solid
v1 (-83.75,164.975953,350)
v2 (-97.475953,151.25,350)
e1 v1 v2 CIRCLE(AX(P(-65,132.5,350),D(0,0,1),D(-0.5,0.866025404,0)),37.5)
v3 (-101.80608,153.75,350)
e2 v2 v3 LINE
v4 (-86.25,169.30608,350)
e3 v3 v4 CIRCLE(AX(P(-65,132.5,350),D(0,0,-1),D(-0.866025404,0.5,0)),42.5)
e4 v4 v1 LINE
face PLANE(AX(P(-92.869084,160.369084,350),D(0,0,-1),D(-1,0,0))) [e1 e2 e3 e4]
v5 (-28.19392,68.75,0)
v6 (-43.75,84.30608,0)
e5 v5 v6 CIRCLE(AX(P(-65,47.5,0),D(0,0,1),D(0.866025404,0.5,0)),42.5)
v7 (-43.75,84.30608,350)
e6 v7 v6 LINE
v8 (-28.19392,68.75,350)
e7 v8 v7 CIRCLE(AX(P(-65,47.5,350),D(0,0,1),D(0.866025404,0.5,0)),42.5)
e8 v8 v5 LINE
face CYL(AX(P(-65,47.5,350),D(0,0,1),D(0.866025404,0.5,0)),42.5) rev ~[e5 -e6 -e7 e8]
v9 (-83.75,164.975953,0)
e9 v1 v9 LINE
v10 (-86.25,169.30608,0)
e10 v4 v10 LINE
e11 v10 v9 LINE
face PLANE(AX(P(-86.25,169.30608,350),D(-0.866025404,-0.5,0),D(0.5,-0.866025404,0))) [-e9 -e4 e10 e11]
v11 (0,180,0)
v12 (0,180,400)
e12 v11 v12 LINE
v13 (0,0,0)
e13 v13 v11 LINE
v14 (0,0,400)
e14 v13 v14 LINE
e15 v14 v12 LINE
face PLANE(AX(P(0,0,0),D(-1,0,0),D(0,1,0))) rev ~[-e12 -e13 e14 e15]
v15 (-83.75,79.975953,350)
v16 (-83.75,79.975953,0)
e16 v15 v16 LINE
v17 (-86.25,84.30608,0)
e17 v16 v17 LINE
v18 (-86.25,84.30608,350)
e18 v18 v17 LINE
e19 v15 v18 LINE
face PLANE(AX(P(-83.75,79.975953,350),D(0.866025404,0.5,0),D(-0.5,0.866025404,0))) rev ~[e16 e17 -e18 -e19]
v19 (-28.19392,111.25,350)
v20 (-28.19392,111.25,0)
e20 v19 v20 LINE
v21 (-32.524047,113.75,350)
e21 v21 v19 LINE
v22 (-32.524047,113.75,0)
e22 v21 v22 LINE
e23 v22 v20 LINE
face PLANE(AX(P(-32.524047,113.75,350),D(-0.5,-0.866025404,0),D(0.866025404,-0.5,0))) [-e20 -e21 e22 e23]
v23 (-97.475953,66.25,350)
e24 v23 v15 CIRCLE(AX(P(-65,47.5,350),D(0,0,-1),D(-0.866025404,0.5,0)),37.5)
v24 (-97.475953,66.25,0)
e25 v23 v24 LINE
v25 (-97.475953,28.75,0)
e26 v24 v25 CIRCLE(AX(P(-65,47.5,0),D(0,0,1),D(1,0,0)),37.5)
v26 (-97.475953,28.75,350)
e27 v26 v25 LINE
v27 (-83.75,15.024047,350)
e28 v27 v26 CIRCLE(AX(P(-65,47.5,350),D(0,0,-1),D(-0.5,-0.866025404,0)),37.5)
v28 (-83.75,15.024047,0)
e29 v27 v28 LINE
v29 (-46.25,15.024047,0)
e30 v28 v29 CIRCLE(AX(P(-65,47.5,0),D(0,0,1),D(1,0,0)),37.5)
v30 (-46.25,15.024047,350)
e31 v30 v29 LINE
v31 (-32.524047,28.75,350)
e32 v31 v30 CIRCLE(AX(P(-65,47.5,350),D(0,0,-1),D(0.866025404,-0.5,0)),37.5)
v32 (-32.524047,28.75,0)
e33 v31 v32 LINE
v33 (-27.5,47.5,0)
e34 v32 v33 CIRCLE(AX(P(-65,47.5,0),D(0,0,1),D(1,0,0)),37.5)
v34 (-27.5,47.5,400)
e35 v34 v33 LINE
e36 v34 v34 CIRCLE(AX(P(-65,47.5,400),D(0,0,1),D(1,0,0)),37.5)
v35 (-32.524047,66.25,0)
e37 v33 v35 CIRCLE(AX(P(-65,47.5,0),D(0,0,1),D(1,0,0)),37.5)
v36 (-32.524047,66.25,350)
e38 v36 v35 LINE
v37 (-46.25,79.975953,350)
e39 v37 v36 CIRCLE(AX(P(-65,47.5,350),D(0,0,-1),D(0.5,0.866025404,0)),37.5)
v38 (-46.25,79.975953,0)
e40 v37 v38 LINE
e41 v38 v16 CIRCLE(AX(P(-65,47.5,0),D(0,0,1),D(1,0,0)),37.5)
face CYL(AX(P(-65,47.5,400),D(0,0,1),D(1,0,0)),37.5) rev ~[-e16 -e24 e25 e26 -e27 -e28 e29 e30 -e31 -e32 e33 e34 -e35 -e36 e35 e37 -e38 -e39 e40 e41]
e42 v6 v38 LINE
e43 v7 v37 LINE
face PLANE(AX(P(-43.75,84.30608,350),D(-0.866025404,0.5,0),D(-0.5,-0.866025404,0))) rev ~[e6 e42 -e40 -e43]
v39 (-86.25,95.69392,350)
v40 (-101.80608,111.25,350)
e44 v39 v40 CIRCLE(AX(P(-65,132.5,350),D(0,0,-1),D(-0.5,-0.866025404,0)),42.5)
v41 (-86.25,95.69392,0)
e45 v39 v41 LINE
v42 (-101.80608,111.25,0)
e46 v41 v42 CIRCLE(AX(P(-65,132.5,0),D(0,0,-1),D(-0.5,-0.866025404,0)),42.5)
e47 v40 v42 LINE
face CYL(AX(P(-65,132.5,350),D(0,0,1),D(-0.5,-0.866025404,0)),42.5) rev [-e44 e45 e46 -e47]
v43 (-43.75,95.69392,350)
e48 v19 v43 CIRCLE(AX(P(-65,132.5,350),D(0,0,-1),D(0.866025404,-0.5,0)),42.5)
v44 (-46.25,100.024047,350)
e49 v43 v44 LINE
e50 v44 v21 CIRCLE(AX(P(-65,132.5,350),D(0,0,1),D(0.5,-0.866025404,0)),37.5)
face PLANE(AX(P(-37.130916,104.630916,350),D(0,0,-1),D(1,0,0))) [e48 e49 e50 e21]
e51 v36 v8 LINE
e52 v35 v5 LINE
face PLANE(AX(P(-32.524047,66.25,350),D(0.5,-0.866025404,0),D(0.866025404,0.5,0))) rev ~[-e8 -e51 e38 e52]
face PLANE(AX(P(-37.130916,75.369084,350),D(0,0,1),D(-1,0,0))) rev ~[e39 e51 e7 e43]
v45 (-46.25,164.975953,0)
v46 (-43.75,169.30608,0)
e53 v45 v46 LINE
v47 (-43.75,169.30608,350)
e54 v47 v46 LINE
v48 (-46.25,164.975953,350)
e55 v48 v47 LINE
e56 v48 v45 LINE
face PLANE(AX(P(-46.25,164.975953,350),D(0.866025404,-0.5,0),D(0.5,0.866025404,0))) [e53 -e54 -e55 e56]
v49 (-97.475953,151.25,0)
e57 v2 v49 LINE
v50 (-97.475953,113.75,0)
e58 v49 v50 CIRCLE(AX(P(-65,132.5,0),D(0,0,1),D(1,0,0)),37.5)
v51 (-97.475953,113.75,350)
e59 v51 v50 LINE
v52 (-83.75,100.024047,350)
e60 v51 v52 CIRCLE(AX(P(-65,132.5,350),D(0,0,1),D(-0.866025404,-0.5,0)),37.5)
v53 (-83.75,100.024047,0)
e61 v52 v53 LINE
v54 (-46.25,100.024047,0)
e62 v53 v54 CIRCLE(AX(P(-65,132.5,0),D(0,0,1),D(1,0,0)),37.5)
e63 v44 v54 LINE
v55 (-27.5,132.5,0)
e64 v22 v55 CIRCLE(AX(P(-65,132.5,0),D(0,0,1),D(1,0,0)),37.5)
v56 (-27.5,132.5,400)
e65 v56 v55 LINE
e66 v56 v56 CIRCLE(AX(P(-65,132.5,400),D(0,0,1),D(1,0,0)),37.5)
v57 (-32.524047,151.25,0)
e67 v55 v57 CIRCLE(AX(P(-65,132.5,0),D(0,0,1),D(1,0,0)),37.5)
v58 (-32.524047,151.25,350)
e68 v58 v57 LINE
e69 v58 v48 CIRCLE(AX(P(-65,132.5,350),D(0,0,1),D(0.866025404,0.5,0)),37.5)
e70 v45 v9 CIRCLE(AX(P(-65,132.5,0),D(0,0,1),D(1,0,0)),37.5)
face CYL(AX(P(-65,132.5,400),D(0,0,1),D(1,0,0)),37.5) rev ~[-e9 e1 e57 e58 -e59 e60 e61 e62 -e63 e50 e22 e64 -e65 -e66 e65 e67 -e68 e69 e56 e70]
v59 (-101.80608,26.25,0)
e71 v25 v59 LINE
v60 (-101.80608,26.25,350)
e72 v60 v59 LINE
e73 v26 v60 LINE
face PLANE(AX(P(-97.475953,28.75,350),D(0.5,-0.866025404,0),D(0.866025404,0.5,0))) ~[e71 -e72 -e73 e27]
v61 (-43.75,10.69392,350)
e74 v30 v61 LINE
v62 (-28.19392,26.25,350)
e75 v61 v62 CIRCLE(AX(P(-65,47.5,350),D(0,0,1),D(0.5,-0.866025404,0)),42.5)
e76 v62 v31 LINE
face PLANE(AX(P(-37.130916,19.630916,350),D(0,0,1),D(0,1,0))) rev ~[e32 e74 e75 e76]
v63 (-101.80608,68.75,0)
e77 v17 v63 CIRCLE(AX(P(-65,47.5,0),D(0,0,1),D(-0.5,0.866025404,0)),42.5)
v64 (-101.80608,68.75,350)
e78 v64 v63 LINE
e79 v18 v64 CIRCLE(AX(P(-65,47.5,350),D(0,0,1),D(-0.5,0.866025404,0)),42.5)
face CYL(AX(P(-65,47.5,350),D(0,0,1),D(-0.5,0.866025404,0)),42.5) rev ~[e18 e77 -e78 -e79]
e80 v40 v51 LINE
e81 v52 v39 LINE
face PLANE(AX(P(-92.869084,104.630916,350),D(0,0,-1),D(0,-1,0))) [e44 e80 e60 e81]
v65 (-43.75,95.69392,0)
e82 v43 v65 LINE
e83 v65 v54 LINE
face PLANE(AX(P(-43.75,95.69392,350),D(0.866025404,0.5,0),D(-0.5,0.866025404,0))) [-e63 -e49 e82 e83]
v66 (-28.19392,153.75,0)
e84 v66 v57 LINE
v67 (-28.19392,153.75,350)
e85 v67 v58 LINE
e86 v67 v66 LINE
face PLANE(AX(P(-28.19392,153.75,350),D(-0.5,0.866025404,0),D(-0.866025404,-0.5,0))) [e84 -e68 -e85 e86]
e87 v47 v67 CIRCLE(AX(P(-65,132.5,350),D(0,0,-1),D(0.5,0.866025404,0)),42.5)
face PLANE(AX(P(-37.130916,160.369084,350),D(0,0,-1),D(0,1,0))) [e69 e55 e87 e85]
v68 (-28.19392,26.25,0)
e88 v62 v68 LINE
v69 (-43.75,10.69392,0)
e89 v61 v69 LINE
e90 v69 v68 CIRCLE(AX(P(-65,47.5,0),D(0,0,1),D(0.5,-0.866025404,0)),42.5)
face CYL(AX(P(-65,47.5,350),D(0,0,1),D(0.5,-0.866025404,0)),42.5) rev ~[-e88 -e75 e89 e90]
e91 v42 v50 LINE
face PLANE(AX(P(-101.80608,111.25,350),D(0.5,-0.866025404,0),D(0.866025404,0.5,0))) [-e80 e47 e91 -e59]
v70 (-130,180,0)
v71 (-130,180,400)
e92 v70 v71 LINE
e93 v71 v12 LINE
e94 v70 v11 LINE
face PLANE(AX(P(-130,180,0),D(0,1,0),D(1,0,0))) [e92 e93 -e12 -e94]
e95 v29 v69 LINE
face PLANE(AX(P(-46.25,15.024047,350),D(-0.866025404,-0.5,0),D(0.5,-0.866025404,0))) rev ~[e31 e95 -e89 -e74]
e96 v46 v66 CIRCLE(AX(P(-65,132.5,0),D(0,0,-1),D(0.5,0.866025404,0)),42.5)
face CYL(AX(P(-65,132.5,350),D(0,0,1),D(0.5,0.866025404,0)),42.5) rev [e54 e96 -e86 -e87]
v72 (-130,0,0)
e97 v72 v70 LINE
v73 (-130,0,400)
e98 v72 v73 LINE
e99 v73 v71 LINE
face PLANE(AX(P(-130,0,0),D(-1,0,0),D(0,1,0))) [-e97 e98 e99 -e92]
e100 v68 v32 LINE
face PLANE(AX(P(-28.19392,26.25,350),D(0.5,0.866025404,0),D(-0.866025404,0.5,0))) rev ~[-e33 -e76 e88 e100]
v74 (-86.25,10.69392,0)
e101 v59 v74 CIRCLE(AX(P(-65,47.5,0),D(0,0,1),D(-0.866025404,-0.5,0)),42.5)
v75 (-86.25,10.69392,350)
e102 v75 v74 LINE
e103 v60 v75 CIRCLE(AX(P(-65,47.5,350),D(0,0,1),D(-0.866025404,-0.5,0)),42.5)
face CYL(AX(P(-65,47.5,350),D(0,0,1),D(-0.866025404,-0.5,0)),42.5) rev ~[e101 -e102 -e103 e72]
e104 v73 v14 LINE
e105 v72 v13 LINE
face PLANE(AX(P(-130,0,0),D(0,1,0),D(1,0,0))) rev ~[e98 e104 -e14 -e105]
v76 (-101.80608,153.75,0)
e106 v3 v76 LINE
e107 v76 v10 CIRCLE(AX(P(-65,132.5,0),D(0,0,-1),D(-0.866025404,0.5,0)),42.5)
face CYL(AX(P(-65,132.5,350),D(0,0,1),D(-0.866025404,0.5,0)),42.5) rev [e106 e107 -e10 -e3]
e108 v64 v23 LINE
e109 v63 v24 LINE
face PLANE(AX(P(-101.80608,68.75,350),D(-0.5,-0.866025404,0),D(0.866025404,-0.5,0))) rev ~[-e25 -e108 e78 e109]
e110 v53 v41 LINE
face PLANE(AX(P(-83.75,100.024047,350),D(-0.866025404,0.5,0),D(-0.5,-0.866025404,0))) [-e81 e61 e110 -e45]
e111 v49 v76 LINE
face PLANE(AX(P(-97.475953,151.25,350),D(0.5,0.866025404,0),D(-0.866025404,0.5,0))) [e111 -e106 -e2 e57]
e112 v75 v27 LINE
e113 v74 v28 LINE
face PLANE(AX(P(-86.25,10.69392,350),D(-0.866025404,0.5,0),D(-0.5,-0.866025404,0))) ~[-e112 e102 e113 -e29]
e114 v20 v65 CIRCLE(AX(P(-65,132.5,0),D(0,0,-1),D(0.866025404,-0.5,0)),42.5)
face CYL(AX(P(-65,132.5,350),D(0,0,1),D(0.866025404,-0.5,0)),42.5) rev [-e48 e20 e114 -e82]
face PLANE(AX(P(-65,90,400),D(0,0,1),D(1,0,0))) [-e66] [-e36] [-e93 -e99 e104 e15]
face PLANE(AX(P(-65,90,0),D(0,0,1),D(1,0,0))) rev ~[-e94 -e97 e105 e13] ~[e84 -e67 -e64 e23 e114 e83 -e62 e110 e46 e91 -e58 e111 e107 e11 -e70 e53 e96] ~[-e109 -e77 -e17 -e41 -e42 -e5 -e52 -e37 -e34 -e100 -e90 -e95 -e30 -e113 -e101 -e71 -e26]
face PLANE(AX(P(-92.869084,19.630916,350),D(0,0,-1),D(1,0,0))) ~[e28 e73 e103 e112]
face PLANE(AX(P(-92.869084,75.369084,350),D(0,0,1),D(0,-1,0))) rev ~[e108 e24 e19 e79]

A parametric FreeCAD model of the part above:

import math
import FreeCAD as App
import Part
import Sketcher
Q = App.Units.Quantity


def add_polygon(sketch, points):
    """Adds a closed chain of lines whose ends are joined by coincident constraints."""
    first, n = sketch.GeometryCount, len(points)
    for a, b in zip(points, points[1:] + points[:1]):
        sketch.addGeometry(Part.LineSegment(App.Vector(*a, 0), App.Vector(*b, 0)), False)
    for i in range(n):
        sketch.addConstraint(Sketcher.Constraint("Coincident", first + i, 2, first + (i + 1) % n, 1))

doc = App.newDocument("Part")
body = doc.addObject("PartDesign::Body", "Body")

sketch1 = doc.addObject("Sketcher::SketchObject", "Sketch")
body.addObject(sketch1)
sketch1.AttachmentSupport = (doc.XY_Plane, [""])
sketch1.MapMode = "FlatFace"
add_polygon(sketch1, [(-130, 180), (-130, 0), (0, 0), (0, 180)])
sketch1.addConstraint(Sketcher.Constraint("Vertical", 0))
sketch1.addConstraint(Sketcher.Constraint("Horizontal", 1))
sketch1.addConstraint(Sketcher.Constraint("Vertical", 2))
sketch1.addConstraint(Sketcher.Constraint("Horizontal", 3))
sketch1.addConstraint(Sketcher.Constraint("Coincident", 1, 2, -1, 1))
sketch1.addConstraint(Sketcher.Constraint("DistanceX", 1, 1, 1, 2, Q("130 mm")))
sketch1.addConstraint(Sketcher.Constraint("DistanceY", 0, 2, 0, 1, Q("180 mm")))
pad1 = doc.addObject("PartDesign::Pad", "Pad")
body.addObject(pad1)
pad1.Profile = sketch1
pad1.Length = 400

sketch2 = doc.addObject("Sketcher::SketchObject", "Sketch001")
body.addObject(sketch2)
sketch2.AttachmentSupport = (doc.XY_Plane, [""])
sketch2.MapMode = "FlatFace"
sketch2.AttachmentOffset = App.Placement(App.Vector(0, 0, 400), App.Rotation())
sketch2.addGeometry(Part.Circle(App.Vector(-65, 132.5, 0), App.Vector(0, 0, 1), 37.5), False)
sketch2.addGeometry(Part.Circle(App.Vector(-65, 47.5, 0), App.Vector(0, 0, 1), 37.5), False)
sketch2.addConstraint(Sketcher.Constraint("Equal", 0, 1))
sketch2.addConstraint(Sketcher.Constraint("Vertical", 0, 3, 1, 3))
sketch2.addConstraint(Sketcher.Constraint("Diameter", 0, Q("75 mm")))
sketch2.addConstraint(Sketcher.Constraint("DistanceX", 0, 3, -1, 1, Q("65 mm")))
sketch2.addConstraint(Sketcher.Constraint("DistanceY", 1, 3, 0, 3, Q("85 mm")))
sketch2.addConstraint(Sketcher.Constraint("DistanceY", -1, 1, 0, 3, Q("132.5 mm")))
pocket1 = doc.addObject("PartDesign::Pocket", "Pocket")
body.addObject(pocket1)
pocket1.Profile = sketch2
pocket1.Type = "ThroughAll"

sketch3 = doc.addObject("Sketcher::SketchObject", "Sketch002")
body.addObject(sketch3)
sketch3.AttachmentSupport = (doc.XY_Plane, [""])
sketch3.MapMode = "FlatFace"
sketch3.AttachmentOffset = App.Placement(App.Vector(0, 0, 350), App.Rotation())
sketch3.addGeometry(Part.LineSegment(App.Vector(-86.25, 169.30608, 0), App.Vector(-83.75, 164.975953, 0)), False)
sketch3.addGeometry(Part.ArcOfCircle(Part.Circle(App.Vector(-65, 132.5, 0), App.Vector(0, 0, 1), 37.5), math.radians(120), math.radians(150)), False)
sketch3.addGeometry(Part.LineSegment(App.Vector(-97.475953, 151.25, 0), App.Vector(-101.80608, 153.75, 0)), False)
sketch3.addGeometry(Part.ArcOfCircle(Part.Circle(App.Vector(-65, 132.5, 0), App.Vector(0, 0, 1), 42.5), math.radians(120), math.radians(150)), False)
sketch3.addConstraint(Sketcher.Constraint("Coincident", 0, 2, 1, 1))
sketch3.addConstraint(Sketcher.Constraint("Coincident", 1, 2, 2, 1))
sketch3.addConstraint(Sketcher.Constraint("Coincident", 2, 2, 3, 2))
sketch3.addConstraint(Sketcher.Constraint("Coincident", 3, 1, 0, 1))
sketch3.addConstraint(Sketcher.Constraint("Coincident", 3, 3, 1, 3))
sketch3.addConstraint(Sketcher.Constraint("Radius", 1, Q("37.5 mm")))
sketch3.addConstraint(Sketcher.Constraint("Radius", 3, Q("42.5 mm")))
sketch3.addConstraint(Sketcher.Constraint("Angle", 0, Q("-60 deg")))
sketch3.addConstraint(Sketcher.Constraint("Angle", 2, Q("150 deg")))
sketch3.addConstraint(Sketcher.Constraint("DistanceX", 1, 3, -1, 1, Q("65 mm")))
sketch3.addConstraint(Sketcher.Constraint("DistanceY", -1, 1, 1, 3, Q("132.5 mm")))
sketch3.addConstraint(Sketcher.Constraint("DistanceX", 0, 2, -1, 1, Q("83.75 mm")))
sketch3.addConstraint(Sketcher.Constraint("DistanceY", -1, 1, 1, 2, Q("151.25 mm")))
pocket2 = doc.addObject("PartDesign::Pocket", "Pocket001")
body.addObject(pocket2)
pocket2.Profile = sketch3
pocket2.Length = 350
doc.recompute()

datumline = doc.addObject("PartDesign::Line", "DatumLine")
body.addObject(datumline)
datumline.Placement = App.Placement(App.Vector(-65, 132.5, 0), App.Rotation(App.Vector(0, 0, 1), App.Vector(0, 0, 1)))
polarpattern = doc.addObject("PartDesign::PolarPattern", "PolarPattern")
body.addObject(polarpattern)
polarpattern.Originals = [pocket2]
polarpattern.Axis = (datumline, [""])
polarpattern.Angle = 360
polarpattern.Occurrences = 4
body.Tip = polarpattern
doc.recompute()

datumplane = doc.addObject("PartDesign::Plane", "DatumPlane")
body.addObject(datumplane)
datumplane.AttachmentSupport = (doc.XZ_Plane, [""])
datumplane.MapMode = "FlatFace"
datumplane.AttachmentOffset = App.Placement(App.Vector(0, 0, -90), App.Rotation())
mirrored = doc.addObject("PartDesign::Mirrored", "Mirrored")
body.addObject(mirrored)
mirrored.Originals = [pocket2]
mirrored.MirrorPlane = (datumplane, [""])
body.Tip = mirrored

sketch4 = doc.addObject("Sketcher::SketchObject", "Sketch003")
body.addObject(sketch4)
sketch4.AttachmentSupport = (doc.XY_Plane, [""])
sketch4.MapMode = "FlatFace"
sketch4.AttachmentOffset = App.Placement(App.Vector(0, 0, 350), App.Rotation())
sketch4.addGeometry(Part.LineSegment(App.Vector(-97.475953, 66.25, 0), App.Vector(-101.80608, 68.75, 0)), False)
sketch4.addGeometry(Part.ArcOfCircle(Part.Circle(App.Vector(-65, 47.5, 0), App.Vector(0, 0, 1), 42.5), math.radians(120), math.radians(150)), False)
sketch4.addGeometry(Part.LineSegment(App.Vector(-86.25, 84.30608, 0), App.Vector(-83.75, 79.975953, 0)), False)
sketch4.addGeometry(Part.ArcOfCircle(Part.Circle(App.Vector(-65, 47.5, 0), App.Vector(0, 0, 1), 37.5), math.radians(120), math.radians(150)), False)
sketch4.addConstraint(Sketcher.Constraint("Coincident", 0, 2, 1, 2))
sketch4.addConstraint(Sketcher.Constraint("Coincident", 1, 1, 2, 1))
sketch4.addConstraint(Sketcher.Constraint("Coincident", 2, 2, 3, 1))
sketch4.addConstraint(Sketcher.Constraint("Coincident", 3, 2, 0, 1))
sketch4.addConstraint(Sketcher.Constraint("Coincident", 3, 3, 1, 3))
sketch4.addConstraint(Sketcher.Constraint("Radius", 1, Q("42.5 mm")))
sketch4.addConstraint(Sketcher.Constraint("Radius", 3, Q("37.5 mm")))
sketch4.addConstraint(Sketcher.Constraint("Angle", 0, Q("150 deg")))
sketch4.addConstraint(Sketcher.Constraint("Angle", 2, Q("-60 deg")))
sketch4.addConstraint(Sketcher.Constraint("DistanceX", 1, 3, -1, 1, Q("65 mm")))
sketch4.addConstraint(Sketcher.Constraint("DistanceY", -1, 1, 1, 3, Q("47.5 mm")))
sketch4.addConstraint(Sketcher.Constraint("DistanceY", -1, 1, 0, 2, Q("68.75 mm")))
sketch4.addConstraint(Sketcher.Constraint("DistanceX", 1, 1, -1, 1, Q("86.25 mm")))
pocket3 = doc.addObject("PartDesign::Pocket", "Pocket002")
body.addObject(pocket3)
pocket3.Profile = sketch4
pocket3.Length = 350

sketch5 = doc.addObject("Sketcher::SketchObject", "Sketch004")
body.addObject(sketch5)
sketch5.AttachmentSupport = (doc.XY_Plane, [""])
sketch5.MapMode = "FlatFace"
sketch5.AttachmentOffset = App.Placement(App.Vector(0, 0, 350), App.Rotation())
sketch5.addGeometry(Part.LineSegment(App.Vector(-46.25, 79.975953, 0), App.Vector(-43.75, 84.30608, 0)), False)
sketch5.addGeometry(Part.ArcOfCircle(Part.Circle(App.Vector(-65, 47.5, 0), App.Vector(0, 0, 1), 42.5), math.radians(30), math.radians(60)), False)
sketch5.addGeometry(Part.LineSegment(App.Vector(-28.19392, 68.75, 0), App.Vector(-32.524047, 66.25, 0)), False)
sketch5.addGeometry(Part.ArcOfCircle(Part.Circle(App.Vector(-65, 47.5, 0), App.Vector(0, 0, 1), 37.5), math.radians(30), math.radians(60)), False)
sketch5.addConstraint(Sketcher.Constraint("Coincident", 0, 2, 1, 2))
sketch5.addConstraint(Sketcher.Constraint("Coincident", 1, 1, 2, 1))
sketch5.addConstraint(Sketcher.Constraint("Coincident", 2, 2, 3, 1))
sketch5.addConstraint(Sketcher.Constraint("Coincident", 3, 2, 0, 1))
sketch5.addConstraint(Sketcher.Constraint("Coincident", 3, 3, 1, 3))
sketch5.addConstraint(Sketcher.Constraint("Radius", 1, Q("42.5 mm")))
sketch5.addConstraint(Sketcher.Constraint("Radius", 3, Q("37.5 mm")))
sketch5.addConstraint(Sketcher.Constraint("Angle", 0, Q("60 deg")))
sketch5.addConstraint(Sketcher.Constraint("Angle", 2, Q("-150 deg")))
sketch5.addConstraint(Sketcher.Constraint("DistanceX", 1, 3, -1, 1, Q("65 mm")))
sketch5.addConstraint(Sketcher.Constraint("DistanceY", -1, 1, 1, 3, Q("47.5 mm")))
sketch5.addConstraint(Sketcher.Constraint("DistanceX", 0, 2, -1, 1, Q("43.75 mm")))
sketch5.addConstraint(Sketcher.Constraint("DistanceY", -1, 1, 1, 1, Q("68.75 mm")))
pocket4 = doc.addObject("PartDesign::Pocket", "Pocket003")
body.addObject(pocket4)
pocket4.Profile = sketch5
pocket4.Length = 350

sketch6 = doc.addObject("Sketcher::SketchObject", "Sketch005")
body.addObject(sketch6)
sketch6.AttachmentSupport = (doc.XY_Plane, [""])
sketch6.MapMode = "FlatFace"
sketch6.AttachmentOffset = App.Placement(App.Vector(0, 0, 350), App.Rotation())
sketch6.addGeometry(Part.LineSegment(App.Vector(-32.524047, 28.75, 0), App.Vector(-28.19392, 26.25, 0)), False)
sketch6.addGeometry(Part.ArcOfCircle(Part.Circle(App.Vector(-65, 47.5, 0), App.Vector(0, 0, 1), 42.5), math.radians(-60), math.radians(-30)), False)
sketch6.addGeometry(Part.LineSegment(App.Vector(-43.75, 10.69392, 0), App.Vector(-46.25, 15.024047, 0)), False)
sketch6.addGeometry(Part.ArcOfCircle(Part.Circle(App.Vector(-65, 47.5, 0), App.Vector(0, 0, 1), 37.5), math.radians(-60), math.radians(-30)), False)
sketch6.addConstraint(Sketcher.Constraint("Coincident", 0, 2, 1, 2))
sketch6.addConstraint(Sketcher.Constraint("Coincident", 1, 1, 2, 1))
sketch6.addConstraint(Sketcher.Constraint("Coincident", 2, 2, 3, 1))
sketch6.addConstraint(Sketcher.Constraint("Coincident", 3, 2, 0, 1))
sketch6.addConstraint(Sketcher.Constraint("Coincident", 3, 3, 1, 3))
sketch6.addConstraint(Sketcher.Constraint("Radius", 1, Q("42.5 mm")))
sketch6.addConstraint(Sketcher.Constraint("Radius", 3, Q("37.5 mm")))
sketch6.addConstraint(Sketcher.Constraint("Angle", 0, Q("-30 deg")))
sketch6.addConstraint(Sketcher.Constraint("Angle", 2, Q("120 deg")))
sketch6.addConstraint(Sketcher.Constraint("DistanceX", 1, 3, -1, 1, Q("65 mm")))
sketch6.addConstraint(Sketcher.Constraint("DistanceY", -1, 1, 1, 3, Q("47.5 mm")))
sketch6.addConstraint(Sketcher.Constraint("DistanceY", -1, 1, 0, 2, Q("26.25 mm")))
sketch6.addConstraint(Sketcher.Constraint("DistanceX", 1, 1, -1, 1, Q("43.75 mm")))
pocket5 = doc.addObject("PartDesign::Pocket", "Pocket004")
body.addObject(pocket5)
pocket5.Profile = sketch6
pocket5.Length = 350

doc.recompute()
